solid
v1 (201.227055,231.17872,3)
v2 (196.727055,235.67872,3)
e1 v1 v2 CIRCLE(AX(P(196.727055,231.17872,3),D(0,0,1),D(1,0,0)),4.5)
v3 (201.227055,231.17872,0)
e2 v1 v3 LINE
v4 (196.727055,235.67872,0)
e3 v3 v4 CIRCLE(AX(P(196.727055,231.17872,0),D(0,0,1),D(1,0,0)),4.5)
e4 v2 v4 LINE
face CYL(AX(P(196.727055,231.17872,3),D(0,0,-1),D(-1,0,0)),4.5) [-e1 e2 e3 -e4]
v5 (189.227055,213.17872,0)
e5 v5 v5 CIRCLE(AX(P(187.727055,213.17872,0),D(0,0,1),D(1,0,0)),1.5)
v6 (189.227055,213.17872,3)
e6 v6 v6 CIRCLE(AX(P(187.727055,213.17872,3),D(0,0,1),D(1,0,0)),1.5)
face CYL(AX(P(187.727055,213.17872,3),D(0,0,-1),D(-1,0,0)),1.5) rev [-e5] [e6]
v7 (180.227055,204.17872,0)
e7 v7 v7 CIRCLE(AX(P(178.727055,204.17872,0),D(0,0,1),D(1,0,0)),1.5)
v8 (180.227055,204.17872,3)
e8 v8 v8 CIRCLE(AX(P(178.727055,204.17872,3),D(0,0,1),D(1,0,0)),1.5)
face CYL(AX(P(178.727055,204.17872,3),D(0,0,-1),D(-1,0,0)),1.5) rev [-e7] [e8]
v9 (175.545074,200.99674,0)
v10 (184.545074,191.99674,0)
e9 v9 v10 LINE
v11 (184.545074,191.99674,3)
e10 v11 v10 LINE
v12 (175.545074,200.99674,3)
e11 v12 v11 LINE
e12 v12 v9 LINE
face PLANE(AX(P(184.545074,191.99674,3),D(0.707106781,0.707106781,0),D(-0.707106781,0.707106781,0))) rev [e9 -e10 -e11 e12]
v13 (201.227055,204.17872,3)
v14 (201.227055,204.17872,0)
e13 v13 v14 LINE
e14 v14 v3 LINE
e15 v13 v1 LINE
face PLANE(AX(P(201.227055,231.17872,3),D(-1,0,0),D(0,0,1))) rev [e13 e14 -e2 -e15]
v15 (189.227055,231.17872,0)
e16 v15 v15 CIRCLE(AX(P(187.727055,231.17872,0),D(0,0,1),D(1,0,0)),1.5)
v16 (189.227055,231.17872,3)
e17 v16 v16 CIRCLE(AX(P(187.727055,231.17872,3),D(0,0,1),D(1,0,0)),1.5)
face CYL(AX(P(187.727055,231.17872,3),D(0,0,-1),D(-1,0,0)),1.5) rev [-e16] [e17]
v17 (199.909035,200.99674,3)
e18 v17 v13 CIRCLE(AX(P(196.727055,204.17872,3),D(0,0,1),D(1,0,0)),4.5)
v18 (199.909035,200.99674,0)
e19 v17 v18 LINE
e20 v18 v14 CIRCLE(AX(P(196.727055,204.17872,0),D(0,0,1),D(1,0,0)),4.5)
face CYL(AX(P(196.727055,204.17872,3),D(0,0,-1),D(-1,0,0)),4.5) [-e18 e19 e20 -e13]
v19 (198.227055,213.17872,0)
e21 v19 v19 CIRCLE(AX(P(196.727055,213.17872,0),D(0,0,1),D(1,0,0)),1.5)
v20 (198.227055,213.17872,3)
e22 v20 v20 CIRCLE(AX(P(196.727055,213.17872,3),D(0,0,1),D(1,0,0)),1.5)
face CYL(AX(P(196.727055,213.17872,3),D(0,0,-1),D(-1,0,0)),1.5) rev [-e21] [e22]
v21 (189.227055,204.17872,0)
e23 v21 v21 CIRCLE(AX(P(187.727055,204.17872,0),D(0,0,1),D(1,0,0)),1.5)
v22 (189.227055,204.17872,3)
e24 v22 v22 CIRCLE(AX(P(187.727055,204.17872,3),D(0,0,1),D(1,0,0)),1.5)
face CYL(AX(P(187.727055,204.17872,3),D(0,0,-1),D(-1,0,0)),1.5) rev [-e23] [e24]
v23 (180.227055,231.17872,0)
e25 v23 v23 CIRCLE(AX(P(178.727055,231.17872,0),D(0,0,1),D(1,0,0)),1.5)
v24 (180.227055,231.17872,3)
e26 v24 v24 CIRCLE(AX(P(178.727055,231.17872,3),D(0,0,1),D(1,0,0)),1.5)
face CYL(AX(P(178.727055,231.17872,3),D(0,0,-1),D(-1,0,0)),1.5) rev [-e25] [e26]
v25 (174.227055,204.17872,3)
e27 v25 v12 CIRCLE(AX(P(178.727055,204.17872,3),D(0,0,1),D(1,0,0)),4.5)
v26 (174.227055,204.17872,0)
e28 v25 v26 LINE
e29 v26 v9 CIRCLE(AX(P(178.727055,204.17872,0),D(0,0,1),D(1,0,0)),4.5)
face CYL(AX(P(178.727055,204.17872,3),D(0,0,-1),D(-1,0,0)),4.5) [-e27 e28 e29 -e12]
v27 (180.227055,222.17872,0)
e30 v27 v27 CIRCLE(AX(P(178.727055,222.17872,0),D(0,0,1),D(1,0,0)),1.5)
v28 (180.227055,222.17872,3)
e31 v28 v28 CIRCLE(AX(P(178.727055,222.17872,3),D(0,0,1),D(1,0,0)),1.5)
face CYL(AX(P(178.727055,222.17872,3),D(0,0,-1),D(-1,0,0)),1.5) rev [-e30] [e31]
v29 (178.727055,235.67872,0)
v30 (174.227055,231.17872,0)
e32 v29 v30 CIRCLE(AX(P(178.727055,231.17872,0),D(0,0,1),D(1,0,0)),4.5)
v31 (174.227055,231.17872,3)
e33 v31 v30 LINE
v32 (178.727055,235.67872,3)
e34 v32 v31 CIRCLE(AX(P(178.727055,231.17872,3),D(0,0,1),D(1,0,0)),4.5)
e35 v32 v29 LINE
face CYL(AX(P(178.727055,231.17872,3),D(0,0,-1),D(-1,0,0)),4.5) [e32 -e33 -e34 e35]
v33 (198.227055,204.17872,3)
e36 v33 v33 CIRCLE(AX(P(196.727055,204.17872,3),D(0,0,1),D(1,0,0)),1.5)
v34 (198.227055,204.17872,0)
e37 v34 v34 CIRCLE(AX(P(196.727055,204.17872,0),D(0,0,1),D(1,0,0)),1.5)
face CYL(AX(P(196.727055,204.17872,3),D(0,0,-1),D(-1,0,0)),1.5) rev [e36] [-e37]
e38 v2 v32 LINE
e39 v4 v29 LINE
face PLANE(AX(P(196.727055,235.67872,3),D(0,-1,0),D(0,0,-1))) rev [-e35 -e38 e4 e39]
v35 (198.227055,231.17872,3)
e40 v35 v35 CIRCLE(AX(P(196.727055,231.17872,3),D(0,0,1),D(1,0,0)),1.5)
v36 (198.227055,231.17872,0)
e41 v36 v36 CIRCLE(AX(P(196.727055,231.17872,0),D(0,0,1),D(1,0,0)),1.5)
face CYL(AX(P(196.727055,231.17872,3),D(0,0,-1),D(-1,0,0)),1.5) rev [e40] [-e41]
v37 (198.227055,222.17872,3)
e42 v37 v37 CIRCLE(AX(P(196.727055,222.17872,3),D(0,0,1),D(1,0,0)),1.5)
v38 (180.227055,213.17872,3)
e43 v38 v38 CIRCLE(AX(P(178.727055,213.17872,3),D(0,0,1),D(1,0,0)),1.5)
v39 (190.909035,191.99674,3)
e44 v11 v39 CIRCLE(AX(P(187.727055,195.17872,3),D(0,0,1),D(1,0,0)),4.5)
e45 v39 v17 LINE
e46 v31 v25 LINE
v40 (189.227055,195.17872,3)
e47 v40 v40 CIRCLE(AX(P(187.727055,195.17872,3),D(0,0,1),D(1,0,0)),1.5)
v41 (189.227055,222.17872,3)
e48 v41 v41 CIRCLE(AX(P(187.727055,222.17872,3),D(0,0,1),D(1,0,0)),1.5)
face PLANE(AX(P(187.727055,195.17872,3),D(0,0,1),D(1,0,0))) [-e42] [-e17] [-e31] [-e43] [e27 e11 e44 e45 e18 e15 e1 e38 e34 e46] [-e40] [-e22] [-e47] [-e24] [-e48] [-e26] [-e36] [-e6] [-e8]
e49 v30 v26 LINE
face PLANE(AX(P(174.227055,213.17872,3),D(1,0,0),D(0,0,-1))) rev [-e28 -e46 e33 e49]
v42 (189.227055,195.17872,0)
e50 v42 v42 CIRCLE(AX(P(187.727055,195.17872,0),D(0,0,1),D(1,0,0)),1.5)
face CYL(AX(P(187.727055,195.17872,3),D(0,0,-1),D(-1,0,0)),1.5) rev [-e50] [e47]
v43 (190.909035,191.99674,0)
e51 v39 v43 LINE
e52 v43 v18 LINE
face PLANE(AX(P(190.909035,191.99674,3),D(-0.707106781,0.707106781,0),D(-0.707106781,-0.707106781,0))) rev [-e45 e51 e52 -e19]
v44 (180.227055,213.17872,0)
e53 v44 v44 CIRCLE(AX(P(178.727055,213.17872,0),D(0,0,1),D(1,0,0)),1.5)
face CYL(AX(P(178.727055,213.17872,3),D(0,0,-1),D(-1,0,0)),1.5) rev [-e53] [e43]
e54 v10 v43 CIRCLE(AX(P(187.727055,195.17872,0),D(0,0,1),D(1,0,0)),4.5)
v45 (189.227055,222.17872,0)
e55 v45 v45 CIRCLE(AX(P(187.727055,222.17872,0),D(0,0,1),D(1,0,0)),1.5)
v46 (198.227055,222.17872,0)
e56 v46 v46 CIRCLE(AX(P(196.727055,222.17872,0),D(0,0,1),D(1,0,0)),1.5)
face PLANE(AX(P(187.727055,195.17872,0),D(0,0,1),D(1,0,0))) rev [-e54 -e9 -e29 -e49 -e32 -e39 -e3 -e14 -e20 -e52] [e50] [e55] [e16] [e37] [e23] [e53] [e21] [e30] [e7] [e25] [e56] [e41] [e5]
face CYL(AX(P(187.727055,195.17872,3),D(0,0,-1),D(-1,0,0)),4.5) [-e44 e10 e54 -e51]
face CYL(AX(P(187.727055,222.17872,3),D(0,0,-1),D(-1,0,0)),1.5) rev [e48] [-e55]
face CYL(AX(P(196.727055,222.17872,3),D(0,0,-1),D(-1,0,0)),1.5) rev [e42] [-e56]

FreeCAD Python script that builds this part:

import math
import FreeCAD as App
import Part
import Sketcher
from FreeCAD import Vector

doc = App.newDocument("Part")
body = doc.addObject("PartDesign::Body", "Body")

sketch1 = body.newObject("Sketcher::SketchObject", "Sketch")
sketch1.AttachmentSupport = (doc.getObject("XY_Plane"), [""])
sketch1.MapMode = "FlatFace"
sketch1.addGeometry(Part.ArcOfCircle(Part.Circle(Vector(178.7, 204.2, 0), Vector(0, 0, 1), 4.5), math.radians(180), math.radians(225)), False)
sketch1.addGeometry(Part.LineSegment(Vector(175.5, 201, 0), Vector(184.5, 192, 0)), False)
sketch1.addGeometry(Part.ArcOfCircle(Part.Circle(Vector(187.7, 195.2, 0), Vector(0, 0, 1), 4.5), math.radians(-135), math.radians(-45)), False)
sketch1.addGeometry(Part.LineSegment(Vector(190.9, 192, 0), Vector(199.9, 201, 0)), False)
sketch1.addGeometry(Part.ArcOfCircle(Part.Circle(Vector(196.7, 204.2, 0), Vector(0, 0, 1), 4.5), math.radians(-45), math.radians(0)), False)
sketch1.addGeometry(Part.LineSegment(Vector(201.2, 204.2, 0), Vector(201.2, 231.2, 0)), False)
sketch1.addGeometry(Part.ArcOfCircle(Part.Circle(Vector(196.7, 231.2, 0), Vector(0, 0, 1), 4.5), math.radians(0), math.radians(90)), False)
sketch1.addGeometry(Part.LineSegment(Vector(196.7, 235.7, 0), Vector(178.7, 235.7, 0)), False)
sketch1.addGeometry(Part.ArcOfCircle(Part.Circle(Vector(178.7, 231.2, 0), Vector(0, 0, 1), 4.5), math.radians(90), math.radians(180)), False)
sketch1.addGeometry(Part.LineSegment(Vector(174.2, 231.2, 0), Vector(174.2, 204.2, 0)), False)
sketch1.addGeometry(Part.Circle(Vector(178.7, 204.2, 0), Vector(0, 0, 1), 1.5), False)
sketch1.addGeometry(Part.Circle(Vector(187.7, 195.2, 0), Vector(0, 0, 1), 1.5), False)
sketch1.addGeometry(Part.Circle(Vector(187.7, 204.2, 0), Vector(0, 0, 1), 1.5), False)
sketch1.addGeometry(Part.Circle(Vector(196.7, 204.2, 0), Vector(0, 0, 1), 1.5), False)
sketch1.addGeometry(Part.Circle(Vector(178.7, 213.2, 0), Vector(0, 0, 1), 1.5), False)
sketch1.addGeometry(Part.Circle(Vector(178.7, 222.2, 0), Vector(0, 0, 1), 1.5), False)
sketch1.addGeometry(Part.Circle(Vector(178.7, 231.2, 0), Vector(0, 0, 1), 1.5), False)
sketch1.addGeometry(Part.Circle(Vector(187.7, 213.2, 0), Vector(0, 0, 1), 1.5), False)
sketch1.addGeometry(Part.Circle(Vector(187.7, 222.2, 0), Vector(0, 0, 1), 1.5), False)
sketch1.addGeometry(Part.Circle(Vector(196.7, 213.2, 0), Vector(0, 0, 1), 1.5), False)
sketch1.addGeometry(Part.Circle(Vector(196.7, 222.2, 0), Vector(0, 0, 1), 1.5), False)
sketch1.addGeometry(Part.Circle(Vector(187.7, 231.2, 0), Vector(0, 0, 1), 1.5), False)
sketch1.addGeometry(Part.Circle(Vector(196.7, 231.2, 0), Vector(0, 0, 1), 1.5), False)
sketch1.addConstraint(Sketcher.Constraint("Tangent", 0, 2, 1, 1))
sketch1.addConstraint(Sketcher.Constraint("Tangent", 1, 2, 2, 1))
sketch1.addConstraint(Sketcher.Constraint("Tangent", 2, 2, 3, 1))
sketch1.addConstraint(Sketcher.Constraint("Tangent", 3, 2, 4, 1))
sketch1.addConstraint(Sketcher.Constraint("Tangent", 4, 2, 5, 1))
sketch1.addConstraint(Sketcher.Constraint("Tangent", 5, 2, 6, 1))
sketch1.addConstraint(Sketcher.Constraint("Tangent", 6, 2, 7, 1))
sketch1.addConstraint(Sketcher.Constraint("Tangent", 7, 2, 8, 1))
sketch1.addConstraint(Sketcher.Constraint("Tangent", 8, 2, 9, 1))
sketch1.addConstraint(Sketcher.Constraint("Tangent", 9, 2, 0, 1))
sketch1.addConstraint(Sketcher.Constraint("Vertical", 5))
sketch1.addConstraint(Sketcher.Constraint("Horizontal", 7))
sketch1.addConstraint(Sketcher.Constraint("Vertical", 9))
sketch1.addConstraint(Sketcher.Constraint("Coincident", 10, 3, 0, 3))
sketch1.addConstraint(Sketcher.Constraint("Coincident", 11, 3, 2, 3))
sketch1.addConstraint(Sketcher.Constraint("Coincident", 13, 3, 4, 3))
sketch1.addConstraint(Sketcher.Constraint("Coincident", 16, 3, 8, 3))
sketch1.addConstraint(Sketcher.Constraint("Coincident", 22, 3, 6, 3))
sketch1.addConstraint(Sketcher.Constraint("Equal", 0, 2))
sketch1.addConstraint(Sketcher.Constraint("Equal", 2, 4))
sketch1.addConstraint(Sketcher.Constraint("Equal", 4, 6))
sketch1.addConstraint(Sketcher.Constraint("Equal", 6, 8))
sketch1.addConstraint(Sketcher.Constraint("Equal", 10, 11))
sketch1.addConstraint(Sketcher.Constraint("Equal", 11, 12))
sketch1.addConstraint(Sketcher.Constraint("Equal", 12, 13))
sketch1.addConstraint(Sketcher.Constraint("Equal", 13, 14))
sketch1.addConstraint(Sketcher.Constraint("Equal", 14, 15))
sketch1.addConstraint(Sketcher.Constraint("Equal", 15, 16))
sketch1.addConstraint(Sketcher.Constraint("Equal", 16, 17))
sketch1.addConstraint(Sketcher.Constraint("Equal", 17, 18))
sketch1.addConstraint(Sketcher.Constraint("Equal", 18, 19))
sketch1.addConstraint(Sketcher.Constraint("Equal", 19, 20))
sketch1.addConstraint(Sketcher.Constraint("Equal", 20, 21))
sketch1.addConstraint(Sketcher.Constraint("Equal", 21, 22))
sketch1.addConstraint(Sketcher.Constraint("Perpendicular", 1, 3))
sketch1.addConstraint(Sketcher.Constraint("Horizontal", 0, 3, 4, 3))
sketch1.addConstraint(Sketcher.Constraint("Horizontal", 10, 3, 12, 3))
sketch1.addConstraint(Sketcher.Constraint("Horizontal", 14, 3, 17, 3))
sketch1.addConstraint(Sketcher.Constraint("Horizontal", 15, 3, 18, 3))
sketch1.addConstraint(Sketcher.Constraint("Horizontal", 17, 3, 19, 3))
sketch1.addConstraint(Sketcher.Constraint("Horizontal", 18, 3, 20, 3))
sketch1.addConstraint(Sketcher.Constraint("Horizontal", 16, 3, 21, 3))
sketch1.addConstraint(Sketcher.Constraint("Horizontal", 1, 2, 2, 2))
sketch1.addConstraint(Sketcher.Constraint("Vertical", 11, 3, 12, 3))
sketch1.addConstraint(Sketcher.Constraint("Vertical", 10, 3, 14, 3))
sketch1.addConstraint(Sketcher.Constraint("Vertical", 14, 3, 15, 3))
sketch1.addConstraint(Sketcher.Constraint("Vertical", 12, 3, 17, 3))
sketch1.addConstraint(Sketcher.Constraint("Vertical", 17, 3, 18, 3))
sketch1.addConstraint(Sketcher.Constraint("Vertical", 13, 3, 19, 3))
sketch1.addConstraint(Sketcher.Constraint("Vertical", 19, 3, 20, 3))
sketch1.addConstraint(Sketcher.Constraint("Vertical", 18, 3, 21, 3))
sketch1.addConstraint(Sketcher.Constraint("Diameter", 10, 3.0))
sketch1.addConstraint(Sketcher.Constraint("Radius", 0, 4.5))
sketch1.addConstraint(Sketcher.Constraint("DistanceX", 7, 2, 7, 1, 18.0))
sketch1.addConstraint(Sketcher.Constraint("DistanceY", 5, 1, 5, 2, 27.0))
sketch1.addConstraint(Sketcher.Constraint("DistanceY", 10, 3, 14, 3, 9.0))
sketch1.addConstraint(Sketcher.Constraint("DistanceY", 14, 3, 15, 3, 9.0))
sketch1.addConstraint(Sketcher.Constraint("DistanceY", -1, 1, 0, 3, 204.17872))
sketch1.addConstraint(Sketcher.Constraint("DistanceX", -1, 1, 0, 3, 178.727055))
pad1 = body.newObject("PartDesign::Pad", "Pad")
pad1.Profile = sketch1
pad1.Length = 3

doc.recompute()
